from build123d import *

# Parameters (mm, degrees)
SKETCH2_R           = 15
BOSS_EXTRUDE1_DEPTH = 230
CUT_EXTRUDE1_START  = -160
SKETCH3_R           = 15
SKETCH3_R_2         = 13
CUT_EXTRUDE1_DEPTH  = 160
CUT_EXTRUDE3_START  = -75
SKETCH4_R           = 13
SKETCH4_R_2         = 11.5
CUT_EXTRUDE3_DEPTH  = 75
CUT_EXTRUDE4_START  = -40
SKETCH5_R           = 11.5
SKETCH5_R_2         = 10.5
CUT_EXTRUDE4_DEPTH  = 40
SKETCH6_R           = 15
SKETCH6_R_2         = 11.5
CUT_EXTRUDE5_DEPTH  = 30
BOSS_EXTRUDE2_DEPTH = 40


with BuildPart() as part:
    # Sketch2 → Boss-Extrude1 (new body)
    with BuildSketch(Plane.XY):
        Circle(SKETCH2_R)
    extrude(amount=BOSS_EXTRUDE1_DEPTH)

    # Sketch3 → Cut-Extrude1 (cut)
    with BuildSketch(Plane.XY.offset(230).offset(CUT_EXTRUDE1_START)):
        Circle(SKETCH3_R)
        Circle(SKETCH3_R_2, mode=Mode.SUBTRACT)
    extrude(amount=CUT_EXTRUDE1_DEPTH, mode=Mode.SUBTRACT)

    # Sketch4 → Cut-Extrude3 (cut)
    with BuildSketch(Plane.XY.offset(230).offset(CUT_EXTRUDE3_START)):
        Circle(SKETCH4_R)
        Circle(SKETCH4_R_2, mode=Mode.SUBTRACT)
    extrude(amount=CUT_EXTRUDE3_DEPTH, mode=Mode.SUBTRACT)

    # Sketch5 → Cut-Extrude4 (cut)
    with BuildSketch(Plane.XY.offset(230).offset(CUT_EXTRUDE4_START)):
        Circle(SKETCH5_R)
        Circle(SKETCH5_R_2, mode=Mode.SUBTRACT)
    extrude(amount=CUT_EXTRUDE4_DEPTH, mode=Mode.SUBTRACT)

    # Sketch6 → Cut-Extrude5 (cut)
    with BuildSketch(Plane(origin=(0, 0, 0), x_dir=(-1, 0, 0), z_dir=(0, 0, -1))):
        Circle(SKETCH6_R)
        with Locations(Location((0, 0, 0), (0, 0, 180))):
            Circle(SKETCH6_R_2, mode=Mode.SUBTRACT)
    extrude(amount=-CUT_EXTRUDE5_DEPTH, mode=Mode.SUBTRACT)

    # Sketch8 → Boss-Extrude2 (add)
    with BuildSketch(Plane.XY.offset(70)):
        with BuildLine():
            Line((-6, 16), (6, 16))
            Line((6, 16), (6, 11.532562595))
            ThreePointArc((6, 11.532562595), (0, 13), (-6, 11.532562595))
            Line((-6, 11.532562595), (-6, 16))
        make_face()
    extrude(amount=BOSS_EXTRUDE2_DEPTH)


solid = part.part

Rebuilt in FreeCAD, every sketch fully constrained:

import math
import FreeCAD as App
import Part
import Sketcher
from FreeCAD import Vector
Q = App.Units.Quantity

doc = App.newDocument("Part")
body = doc.addObject("PartDesign::Body", "Body")

sketch1 = body.newObject("Sketcher::SketchObject", "Sketch")
sketch1.AttachmentSupport = (doc.getObject("XY_Plane"), [""])
sketch1.MapMode = "FlatFace"
sketch1.addGeometry(Part.Circle(Vector(0, 0, 0), Vector(0, 0, 1), 15), False)
sketch1.addConstraint([
    Sketcher.Constraint("Coincident", 0, 3, -1, 1),
    Sketcher.Constraint("Diameter", 0, Q("30 mm")),
])
pad1 = body.newObject("PartDesign::Pad", "Pad")
pad1.Profile = sketch1
pad1.Length = 230

sketch2 = body.newObject("Sketcher::SketchObject", "Sketch001")
sketch2.AttachmentSupport = (doc.getObject("XY_Plane"), [""])
sketch2.MapMode = "FlatFace"
sketch2.AttachmentOffset = App.Placement(Vector(0, 0, 70), App.Rotation())
sketch2.addGeometry([
    Part.Circle(Vector(0, 0, 0), Vector(0, 0, 1), 15),
    Part.Circle(Vector(0, 0, 0), Vector(0, 0, 1), 13),
], False)
sketch2.addConstraint([
    Sketcher.Constraint("Coincident", 0, 3, -1, 1),
    Sketcher.Constraint("Coincident", 1, 3, -1, 1),
    Sketcher.Constraint("Diameter", 0, Q("30 mm")),
    Sketcher.Constraint("Diameter", 1, Q("26 mm")),
])
pocket1 = body.newObject("PartDesign::Pocket", "Pocket")
pocket1.Profile = sketch2
pocket1.Length = 160
pocket1.Reversed = True

sketch3 = body.newObject("Sketcher::SketchObject", "Sketch002")
sketch3.AttachmentSupport = (doc.getObject("XY_Plane"), [""])
sketch3.MapMode = "FlatFace"
sketch3.AttachmentOffset = App.Placement(Vector(0, 0, 155), App.Rotation())
sketch3.addGeometry([
    Part.Circle(Vector(0, 0, 0), Vector(0, 0, 1), 13),
    Part.Circle(Vector(0, 0, 0), Vector(0, 0, 1), 12),
], False)
sketch3.addConstraint([
    Sketcher.Constraint("Coincident", 0, 3, -1, 1),
    Sketcher.Constraint("Coincident", 1, 3, -1, 1),
    Sketcher.Constraint("Diameter", 0, Q("26 mm")),
    Sketcher.Constraint("Diameter", 1, Q("23 mm")),
])
pocket2 = body.newObject("PartDesign::Pocket", "Pocket001")
pocket2.Profile = sketch3
pocket2.Length = 75
pocket2.Reversed = True

sketch4 = body.newObject("Sketcher::SketchObject", "Sketch003")
sketch4.AttachmentSupport = (doc.getObject("XY_Plane"), [""])
sketch4.MapMode = "FlatFace"
sketch4.AttachmentOffset = App.Placement(Vector(0, 0, 190), App.Rotation())
sketch4.addGeometry([
    Part.Circle(Vector(0, 0, 0), Vector(0, 0, 1), 12),
    Part.Circle(Vector(0, 0, 0), Vector(0, 0, 1), 10),
], False)
sketch4.addConstraint([
    Sketcher.Constraint("Coincident", 0, 3, -1, 1),
    Sketcher.Constraint("Coincident", 1, 3, -1, 1),
    Sketcher.Constraint("Diameter", 0, Q("23 mm")),
    Sketcher.Constraint("Diameter", 1, Q("21 mm")),
])
pocket3 = body.newObject("PartDesign::Pocket", "Pocket002")
pocket3.Profile = sketch4
pocket3.Length = 40
pocket3.Reversed = True

sketch5 = body.newObject("Sketcher::SketchObject", "Sketch004")
sketch5.AttachmentSupport = (doc.getObject("XY_Plane"), [""])
sketch5.MapMode = "FlatFace"
sketch5.addGeometry([
    Part.Circle(Vector(0, 0, 0), Vector(0, 0, 1), 15),
    Part.Circle(Vector(0, 0, 0), Vector(0, 0, 1), 12),
], False)
sketch5.addConstraint([
    Sketcher.Constraint("Coincident", 0, 3, -1, 1),
    Sketcher.Constraint("Coincident", 1, 3, -1, 1),
    Sketcher.Constraint("Diameter", 0, Q("30 mm")),
    Sketcher.Constraint("Diameter", 1, Q("23 mm")),
])
pocket4 = body.newObject("PartDesign::Pocket", "Pocket003")
pocket4.Profile = sketch5
pocket4.Length = 30
pocket4.Reversed = True

sketch6 = body.newObject("Sketcher::SketchObject", "Sketch005")
sketch6.AttachmentSupport = (doc.getObject("XY_Plane"), [""])
sketch6.MapMode = "FlatFace"
sketch6.AttachmentOffset = App.Placement(Vector(0, 0, 70), App.Rotation())
sketch6.addGeometry([
    Part.LineSegment(Vector(6, 16, 0), Vector(-6, 16, 0)),
    Part.LineSegment(Vector(-6, 16, 0), Vector(-6, 11.5, 0)),
    Part.ArcOfCircle(Part.Circle(Vector(0, 0, 0), Vector(0, 0, 1), 13), math.radians(63), math.radians(117)),
    Part.LineSegment(Vector(6, 11.5, 0), Vector(6, 16, 0)),
], False)
sketch6.addConstraint([
    Sketcher.Constraint("Coincident", 0, 2, 1, 1),
    Sketcher.Constraint("Coincident", 1, 2, 2, 2),
    Sketcher.Constraint("Coincident", 2, 1, 3, 1),
    Sketcher.Constraint("Coincident", 3, 2, 0, 1),
    Sketcher.Constraint("Horizontal", 0),
    Sketcher.Constraint("Vertical", 1),
    Sketcher.Constraint("Vertical", 3),
    Sketcher.Constraint("Coincident", 2, 3, -1, 1),
    Sketcher.Constraint("Horizontal", 1, 2, 2, 1),
    Sketcher.Constraint("Radius", 2, Q("13 mm")),
    Sketcher.Constraint("DistanceX", 0, 2, 0, 1, Q("12 mm")),
    Sketcher.Constraint("DistanceY", -1, 1, 0, 2, Q("16 mm")),
])
pad2 = body.newObject("PartDesign::Pad", "Pad001")
pad2.Profile = sketch6
pad2.Length = 40

doc.recompute()
